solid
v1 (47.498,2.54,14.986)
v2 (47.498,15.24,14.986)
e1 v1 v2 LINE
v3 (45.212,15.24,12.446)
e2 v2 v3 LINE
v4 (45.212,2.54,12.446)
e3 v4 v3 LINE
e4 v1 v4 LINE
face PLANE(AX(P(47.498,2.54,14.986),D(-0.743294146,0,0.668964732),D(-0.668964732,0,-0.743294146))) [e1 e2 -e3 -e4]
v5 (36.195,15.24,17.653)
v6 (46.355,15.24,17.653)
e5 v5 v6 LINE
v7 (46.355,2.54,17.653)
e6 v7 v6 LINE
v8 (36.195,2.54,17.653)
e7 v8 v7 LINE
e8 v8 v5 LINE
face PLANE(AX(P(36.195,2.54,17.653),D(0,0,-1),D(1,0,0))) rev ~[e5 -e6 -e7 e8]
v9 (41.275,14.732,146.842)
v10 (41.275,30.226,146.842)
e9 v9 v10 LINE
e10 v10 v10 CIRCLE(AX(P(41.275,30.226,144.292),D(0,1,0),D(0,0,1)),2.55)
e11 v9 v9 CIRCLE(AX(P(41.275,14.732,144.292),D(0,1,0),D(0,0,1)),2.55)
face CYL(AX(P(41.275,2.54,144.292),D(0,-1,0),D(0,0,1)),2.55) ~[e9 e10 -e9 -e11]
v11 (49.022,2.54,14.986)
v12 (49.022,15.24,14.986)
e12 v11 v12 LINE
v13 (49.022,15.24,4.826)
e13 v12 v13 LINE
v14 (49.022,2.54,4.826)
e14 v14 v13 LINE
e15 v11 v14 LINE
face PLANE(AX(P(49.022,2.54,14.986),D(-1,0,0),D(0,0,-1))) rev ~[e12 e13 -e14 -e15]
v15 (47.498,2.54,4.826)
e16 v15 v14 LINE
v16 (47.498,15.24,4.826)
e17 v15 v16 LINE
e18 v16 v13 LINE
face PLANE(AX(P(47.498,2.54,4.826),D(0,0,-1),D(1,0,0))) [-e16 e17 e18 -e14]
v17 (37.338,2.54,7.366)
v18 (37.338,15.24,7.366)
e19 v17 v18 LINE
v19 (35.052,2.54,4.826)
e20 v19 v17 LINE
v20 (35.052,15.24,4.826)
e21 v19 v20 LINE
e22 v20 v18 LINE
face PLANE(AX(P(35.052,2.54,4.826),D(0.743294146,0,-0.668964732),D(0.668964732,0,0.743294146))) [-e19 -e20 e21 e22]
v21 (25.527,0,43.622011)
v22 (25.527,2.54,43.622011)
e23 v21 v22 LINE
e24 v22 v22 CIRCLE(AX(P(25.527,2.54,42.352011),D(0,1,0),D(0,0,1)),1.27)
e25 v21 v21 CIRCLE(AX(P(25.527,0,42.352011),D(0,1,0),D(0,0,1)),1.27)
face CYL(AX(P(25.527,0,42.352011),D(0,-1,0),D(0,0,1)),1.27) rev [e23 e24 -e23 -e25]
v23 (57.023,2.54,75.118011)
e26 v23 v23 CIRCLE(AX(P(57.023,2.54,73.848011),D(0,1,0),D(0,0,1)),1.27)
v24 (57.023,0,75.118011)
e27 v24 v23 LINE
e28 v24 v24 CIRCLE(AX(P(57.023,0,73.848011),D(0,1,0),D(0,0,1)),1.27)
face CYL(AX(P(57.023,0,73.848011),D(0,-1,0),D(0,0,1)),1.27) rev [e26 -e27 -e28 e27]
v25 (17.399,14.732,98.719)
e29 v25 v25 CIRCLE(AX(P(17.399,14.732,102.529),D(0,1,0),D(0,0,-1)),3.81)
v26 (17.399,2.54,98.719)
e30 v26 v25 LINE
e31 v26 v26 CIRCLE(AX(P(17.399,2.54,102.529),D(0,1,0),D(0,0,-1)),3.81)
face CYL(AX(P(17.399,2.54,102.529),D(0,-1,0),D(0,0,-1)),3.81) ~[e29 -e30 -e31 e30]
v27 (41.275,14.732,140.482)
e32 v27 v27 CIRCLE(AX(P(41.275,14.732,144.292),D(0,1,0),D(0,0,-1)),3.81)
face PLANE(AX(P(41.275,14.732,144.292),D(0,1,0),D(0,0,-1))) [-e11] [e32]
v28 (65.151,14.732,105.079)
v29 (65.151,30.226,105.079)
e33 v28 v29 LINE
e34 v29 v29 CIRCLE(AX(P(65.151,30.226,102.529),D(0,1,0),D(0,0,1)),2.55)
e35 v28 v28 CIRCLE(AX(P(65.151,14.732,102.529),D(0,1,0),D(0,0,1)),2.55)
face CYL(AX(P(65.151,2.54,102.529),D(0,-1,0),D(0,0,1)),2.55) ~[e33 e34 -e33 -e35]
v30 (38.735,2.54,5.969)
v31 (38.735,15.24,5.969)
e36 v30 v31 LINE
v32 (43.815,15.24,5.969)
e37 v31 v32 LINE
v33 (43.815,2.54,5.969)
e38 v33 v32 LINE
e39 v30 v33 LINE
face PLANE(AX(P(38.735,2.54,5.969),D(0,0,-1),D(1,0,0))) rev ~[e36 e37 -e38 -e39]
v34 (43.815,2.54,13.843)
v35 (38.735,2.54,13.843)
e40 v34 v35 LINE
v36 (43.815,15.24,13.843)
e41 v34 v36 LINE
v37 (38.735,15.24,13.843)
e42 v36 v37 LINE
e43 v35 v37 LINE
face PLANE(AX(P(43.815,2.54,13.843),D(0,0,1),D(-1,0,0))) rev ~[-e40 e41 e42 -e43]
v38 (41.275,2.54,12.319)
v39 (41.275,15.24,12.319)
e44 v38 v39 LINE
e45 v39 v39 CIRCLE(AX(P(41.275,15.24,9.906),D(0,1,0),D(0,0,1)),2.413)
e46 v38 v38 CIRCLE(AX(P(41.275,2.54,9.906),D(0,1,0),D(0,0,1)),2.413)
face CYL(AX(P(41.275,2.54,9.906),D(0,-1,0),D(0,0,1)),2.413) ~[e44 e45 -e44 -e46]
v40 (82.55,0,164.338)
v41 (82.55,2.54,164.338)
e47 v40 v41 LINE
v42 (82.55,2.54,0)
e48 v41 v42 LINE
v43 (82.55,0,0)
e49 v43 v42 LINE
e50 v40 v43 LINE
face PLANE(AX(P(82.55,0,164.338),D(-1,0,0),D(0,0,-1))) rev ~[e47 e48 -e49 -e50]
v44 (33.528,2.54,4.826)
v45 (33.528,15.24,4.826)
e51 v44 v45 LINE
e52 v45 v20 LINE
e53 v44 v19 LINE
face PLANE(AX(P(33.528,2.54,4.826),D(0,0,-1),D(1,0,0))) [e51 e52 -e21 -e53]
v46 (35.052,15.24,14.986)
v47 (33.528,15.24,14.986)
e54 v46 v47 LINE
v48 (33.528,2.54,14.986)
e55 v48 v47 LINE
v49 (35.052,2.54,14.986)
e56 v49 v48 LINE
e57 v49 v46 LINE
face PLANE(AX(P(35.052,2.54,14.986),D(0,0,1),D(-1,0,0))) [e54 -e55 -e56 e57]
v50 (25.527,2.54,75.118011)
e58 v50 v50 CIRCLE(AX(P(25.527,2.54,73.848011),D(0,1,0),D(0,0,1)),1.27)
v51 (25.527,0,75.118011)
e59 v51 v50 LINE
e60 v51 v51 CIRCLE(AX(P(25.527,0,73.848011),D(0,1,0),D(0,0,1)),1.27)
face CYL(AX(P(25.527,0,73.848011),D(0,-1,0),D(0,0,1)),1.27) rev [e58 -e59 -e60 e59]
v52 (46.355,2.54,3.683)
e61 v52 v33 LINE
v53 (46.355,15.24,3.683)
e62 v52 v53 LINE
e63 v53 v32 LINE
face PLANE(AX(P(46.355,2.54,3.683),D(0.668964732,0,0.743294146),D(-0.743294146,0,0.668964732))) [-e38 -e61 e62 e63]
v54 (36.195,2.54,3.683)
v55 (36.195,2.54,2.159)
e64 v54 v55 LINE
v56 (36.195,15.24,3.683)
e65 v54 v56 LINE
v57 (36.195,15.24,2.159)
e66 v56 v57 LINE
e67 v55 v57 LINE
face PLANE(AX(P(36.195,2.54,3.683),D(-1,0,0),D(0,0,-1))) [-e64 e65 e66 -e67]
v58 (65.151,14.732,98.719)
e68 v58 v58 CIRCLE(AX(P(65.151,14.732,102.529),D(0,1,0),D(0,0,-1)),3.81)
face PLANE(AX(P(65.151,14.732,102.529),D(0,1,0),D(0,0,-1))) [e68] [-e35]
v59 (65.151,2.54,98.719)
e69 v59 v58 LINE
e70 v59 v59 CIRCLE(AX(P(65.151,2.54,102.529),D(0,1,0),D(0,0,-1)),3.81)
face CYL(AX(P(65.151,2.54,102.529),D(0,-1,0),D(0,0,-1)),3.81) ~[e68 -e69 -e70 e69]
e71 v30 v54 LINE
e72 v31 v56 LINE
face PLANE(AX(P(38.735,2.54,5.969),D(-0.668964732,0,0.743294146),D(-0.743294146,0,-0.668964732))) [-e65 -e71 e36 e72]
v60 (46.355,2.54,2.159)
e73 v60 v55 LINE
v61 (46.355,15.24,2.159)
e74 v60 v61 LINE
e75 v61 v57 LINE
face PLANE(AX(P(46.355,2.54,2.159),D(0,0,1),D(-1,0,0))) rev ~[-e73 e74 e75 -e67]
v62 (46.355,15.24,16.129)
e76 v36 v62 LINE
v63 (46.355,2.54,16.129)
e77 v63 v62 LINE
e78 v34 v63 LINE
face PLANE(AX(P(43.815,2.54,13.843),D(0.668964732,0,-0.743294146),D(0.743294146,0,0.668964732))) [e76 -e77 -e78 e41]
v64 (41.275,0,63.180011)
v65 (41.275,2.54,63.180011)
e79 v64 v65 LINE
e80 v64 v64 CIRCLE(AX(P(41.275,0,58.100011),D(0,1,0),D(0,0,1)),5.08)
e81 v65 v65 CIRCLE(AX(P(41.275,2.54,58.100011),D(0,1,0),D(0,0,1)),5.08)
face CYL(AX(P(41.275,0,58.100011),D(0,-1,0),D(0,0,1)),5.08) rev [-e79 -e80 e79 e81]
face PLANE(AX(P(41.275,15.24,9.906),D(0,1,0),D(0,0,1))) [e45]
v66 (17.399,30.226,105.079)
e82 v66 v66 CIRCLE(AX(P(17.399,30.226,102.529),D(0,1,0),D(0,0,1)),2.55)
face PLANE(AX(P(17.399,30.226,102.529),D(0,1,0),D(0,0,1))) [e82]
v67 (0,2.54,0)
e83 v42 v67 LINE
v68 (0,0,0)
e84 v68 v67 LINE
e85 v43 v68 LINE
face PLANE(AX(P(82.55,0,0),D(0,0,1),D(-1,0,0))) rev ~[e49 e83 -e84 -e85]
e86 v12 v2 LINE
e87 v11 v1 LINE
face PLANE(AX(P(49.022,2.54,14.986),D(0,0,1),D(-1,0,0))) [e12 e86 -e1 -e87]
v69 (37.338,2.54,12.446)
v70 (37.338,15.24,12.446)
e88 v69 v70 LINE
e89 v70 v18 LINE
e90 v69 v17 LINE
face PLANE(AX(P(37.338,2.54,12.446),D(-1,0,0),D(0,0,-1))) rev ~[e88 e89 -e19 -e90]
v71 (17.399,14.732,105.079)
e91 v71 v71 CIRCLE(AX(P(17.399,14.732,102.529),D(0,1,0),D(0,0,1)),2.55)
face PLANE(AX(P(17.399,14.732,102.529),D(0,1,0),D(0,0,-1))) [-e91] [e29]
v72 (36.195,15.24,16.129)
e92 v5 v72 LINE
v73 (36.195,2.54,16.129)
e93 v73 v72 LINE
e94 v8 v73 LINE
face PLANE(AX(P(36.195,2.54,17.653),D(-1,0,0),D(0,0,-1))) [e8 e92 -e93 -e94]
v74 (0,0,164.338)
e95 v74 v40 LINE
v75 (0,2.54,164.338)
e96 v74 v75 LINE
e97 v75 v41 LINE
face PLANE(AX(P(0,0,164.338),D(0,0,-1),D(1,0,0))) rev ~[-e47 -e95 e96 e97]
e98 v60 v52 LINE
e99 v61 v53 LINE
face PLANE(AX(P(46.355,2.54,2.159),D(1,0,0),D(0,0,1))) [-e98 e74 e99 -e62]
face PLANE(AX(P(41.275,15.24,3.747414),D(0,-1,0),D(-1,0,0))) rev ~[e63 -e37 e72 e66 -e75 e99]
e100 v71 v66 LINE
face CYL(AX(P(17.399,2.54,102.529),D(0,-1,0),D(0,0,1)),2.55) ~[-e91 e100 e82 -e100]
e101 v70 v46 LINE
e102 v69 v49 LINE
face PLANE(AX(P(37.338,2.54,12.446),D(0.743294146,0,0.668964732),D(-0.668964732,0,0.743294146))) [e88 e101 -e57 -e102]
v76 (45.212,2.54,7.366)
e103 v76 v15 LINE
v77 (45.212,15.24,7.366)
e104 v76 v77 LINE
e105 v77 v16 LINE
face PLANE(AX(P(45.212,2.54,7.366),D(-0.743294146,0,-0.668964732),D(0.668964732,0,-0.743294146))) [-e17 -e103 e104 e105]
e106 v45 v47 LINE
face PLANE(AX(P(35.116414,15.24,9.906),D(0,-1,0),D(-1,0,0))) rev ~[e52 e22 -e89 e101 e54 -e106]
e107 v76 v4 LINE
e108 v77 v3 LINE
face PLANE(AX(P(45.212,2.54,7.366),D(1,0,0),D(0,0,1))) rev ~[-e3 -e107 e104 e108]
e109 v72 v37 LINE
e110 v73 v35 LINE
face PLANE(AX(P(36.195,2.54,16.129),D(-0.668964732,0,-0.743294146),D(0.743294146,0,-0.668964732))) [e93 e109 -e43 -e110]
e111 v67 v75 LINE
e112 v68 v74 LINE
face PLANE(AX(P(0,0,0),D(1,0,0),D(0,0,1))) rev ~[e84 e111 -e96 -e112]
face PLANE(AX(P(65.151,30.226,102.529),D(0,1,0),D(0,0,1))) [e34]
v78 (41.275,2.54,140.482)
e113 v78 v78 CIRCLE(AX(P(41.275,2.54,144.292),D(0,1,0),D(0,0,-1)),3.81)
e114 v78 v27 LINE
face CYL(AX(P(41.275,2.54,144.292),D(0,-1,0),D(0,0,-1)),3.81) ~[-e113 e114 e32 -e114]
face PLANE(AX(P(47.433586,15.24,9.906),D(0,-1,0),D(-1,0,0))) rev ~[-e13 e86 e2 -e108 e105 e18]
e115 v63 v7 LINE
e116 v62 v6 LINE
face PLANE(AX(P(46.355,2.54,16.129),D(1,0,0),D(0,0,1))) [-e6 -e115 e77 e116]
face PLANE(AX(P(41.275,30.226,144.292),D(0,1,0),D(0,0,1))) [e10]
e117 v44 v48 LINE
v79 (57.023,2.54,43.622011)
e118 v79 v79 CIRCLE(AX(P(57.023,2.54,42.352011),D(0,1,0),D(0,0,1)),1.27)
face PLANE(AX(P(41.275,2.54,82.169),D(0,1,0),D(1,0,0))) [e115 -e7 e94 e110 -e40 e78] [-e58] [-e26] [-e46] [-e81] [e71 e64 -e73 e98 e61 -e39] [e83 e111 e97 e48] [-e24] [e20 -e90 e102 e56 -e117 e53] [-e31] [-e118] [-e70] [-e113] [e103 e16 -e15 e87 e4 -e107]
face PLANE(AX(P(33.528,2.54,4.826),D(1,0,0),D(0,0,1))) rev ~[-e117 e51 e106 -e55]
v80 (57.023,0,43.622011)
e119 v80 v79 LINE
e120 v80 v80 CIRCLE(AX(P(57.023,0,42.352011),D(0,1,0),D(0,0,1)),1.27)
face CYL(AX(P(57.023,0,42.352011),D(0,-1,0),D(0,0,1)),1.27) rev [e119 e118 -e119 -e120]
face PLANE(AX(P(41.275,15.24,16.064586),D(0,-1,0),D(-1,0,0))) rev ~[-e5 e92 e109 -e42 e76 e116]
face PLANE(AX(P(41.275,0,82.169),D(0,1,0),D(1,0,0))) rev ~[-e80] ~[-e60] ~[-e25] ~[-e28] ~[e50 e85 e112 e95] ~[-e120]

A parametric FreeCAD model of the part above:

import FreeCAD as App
import Part
import Sketcher
from FreeCAD import Vector
Q = App.Units.Quantity


def add_polygon(sketch, points):
    """Adds a closed chain of lines whose ends are joined by coincident constraints."""
    first, n = sketch.GeometryCount, len(points)
    for a, b in zip(points, points[1:] + points[:1]):
        sketch.addGeometry(Part.LineSegment(App.Vector(*a, 0), App.Vector(*b, 0)), False)
    for i in range(n):
        sketch.addConstraint(Sketcher.Constraint("Coincident", first + i, 2, first + (i + 1) % n, 1))

doc = App.newDocument("Part")
params = doc.addObject("Spreadsheet::Sheet", "Params")
for row, (alias, value) in enumerate([
    ("sketch1_diameter", "0.1 in"),
    ("sketch1_diameter2", "0.4 in"),
    ("sketch1_width", "3.25 in"),
    ("sketch1_height", "6.47 in"),
    ("pad1_length", "0.1 in"),
    ("sketch2_diameter", "0.19 in"),
    ("sketch2_width", "0.4 in"),
    ("sketch2_width2", "0.2 in"),
    ("sketch2_width3", "0.06 in"),
    ("pad2_length", "0.5 in"),
    ("pad3_length", "1.09 in"),
    ("sketch4_diameter", "0.3 in"),
    ("pad4_length", "0.48 in"),
], start=1):
    params.set(f"A{row}", alias)
    params.set(f"B{row}", "=" + value)
    params.setAlias(f"B{row}", alias)

body = doc.addObject("PartDesign::Body", "Body")

sketch1 = body.newObject("Sketcher::SketchObject", "Sketch")
sketch1.AttachmentSupport = (doc.getObject("XZ_Plane"), [""])
sketch1.MapMode = "FlatFace"
add_polygon(sketch1, [(82.5, 164.3), (82.5, 0), (0, 0), (0, 164.3)])
sketch1.addGeometry(Part.Circle(Vector(25.5, 73.8, 0), Vector(0, 0, 1), 1.3), False)
sketch1.addGeometry(Part.Circle(Vector(41.3, 58.1, 0), Vector(0, 0, 1), 5.1), False)
sketch1.addGeometry(Part.Circle(Vector(57, 73.8, 0), Vector(0, 0, 1), 1.3), False)
sketch1.addGeometry(Part.Circle(Vector(25.5, 42.4, 0), Vector(0, 0, 1), 1.3), False)
sketch1.addGeometry(Part.Circle(Vector(57, 42.4, 0), Vector(0, 0, 1), 1.3), False)
sketch1.addConstraint(Sketcher.Constraint("Vertical", 0))
sketch1.addConstraint(Sketcher.Constraint("Horizontal", 1))
sketch1.addConstraint(Sketcher.Constraint("Vertical", 2))
sketch1.addConstraint(Sketcher.Constraint("Horizontal", 3))
sketch1.addConstraint(Sketcher.Constraint("Coincident", 1, 2, -1, 1))
sketch1.addConstraint(Sketcher.Constraint("Equal", 4, 6))
sketch1.addConstraint(Sketcher.Constraint("Equal", 6, 7))
sketch1.addConstraint(Sketcher.Constraint("Equal", 7, 8))
sketch1.addConstraint(Sketcher.Constraint("Horizontal", 4, 3, 6, 3))
sketch1.addConstraint(Sketcher.Constraint("Horizontal", 7, 3, 8, 3))
sketch1.addConstraint(Sketcher.Constraint("Vertical", 4, 3, 7, 3))
sketch1.addConstraint(Sketcher.Constraint("Vertical", 6, 3, 8, 3))
sketch1.addConstraint(Sketcher.Constraint("Diameter", 4, Q("0.1 in")))
sketch1.addConstraint(Sketcher.Constraint("Diameter", 5, Q("0.4 in")))
sketch1.addConstraint(Sketcher.Constraint("DistanceX", 1, 2, 1, 1, Q("3.25 in")))
sketch1.addConstraint(Sketcher.Constraint("DistanceY", 0, 2, 0, 1, Q("6.47 in")))
sketch1.addConstraint(Sketcher.Constraint("DistanceX", 4, 3, 5, 3, Q("0.62 in")))
sketch1.addConstraint(Sketcher.Constraint("DistanceY", 5, 3, 4, 3, Q("0.62 in")))
sketch1.addConstraint(Sketcher.Constraint("DistanceX", 5, 3, 6, 3, Q("0.62 in")))
sketch1.addConstraint(Sketcher.Constraint("DistanceY", 7, 3, 5, 3, Q("0.62 in")))
sketch1.addConstraint(Sketcher.Constraint("DistanceX", -1, 1, 4, 3, Q("1.005 in")))
sketch1.addConstraint(Sketcher.Constraint("DistanceY", -1, 1, 4, 3, 73.848011))
sketch1.setExpression("Constraints[16]", "Params.sketch1_diameter")
sketch1.setExpression("Constraints[17]", "Params.sketch1_diameter2")
sketch1.setExpression("Constraints[18]", "Params.sketch1_width")
sketch1.setExpression("Constraints[19]", "Params.sketch1_height")
pad1 = body.newObject("PartDesign::Pad", "Pad")
pad1.Profile = sketch1
pad1.setExpression("Length", "Params.pad1_length")
pad1.Reversed = True

sketch2 = body.newObject("Sketcher::SketchObject", "Sketch001")
sketch2.AttachmentSupport = (doc.getObject("XZ_Plane"), [""])
sketch2.MapMode = "FlatFace"
sketch2.AttachmentOffset = App.Placement(Vector(0, 0, -0.1 * 25.4), App.Rotation())
add_polygon(sketch2, [(33.5, 4.8), (33.5, 15), (35.1, 15), (37.3, 12.4), (37.3, 7.4), (35.1, 4.8)])
sketch2.addGeometry(Part.Circle(Vector(41.3, 9.9, 0), Vector(0, 0, 1), 2.4), False)
add_polygon(sketch2, [(46.4, 2.2), (36.2, 2.2), (36.2, 3.7), (38.7, 6), (43.8, 6), (46.4, 3.7)])
add_polygon(sketch2, [(45.2, 12.4), (47.5, 15), (49, 15), (49, 4.8), (47.5, 4.8), (45.2, 7.4)])
add_polygon(sketch2, [(36.2, 17.7), (46.4, 17.7), (46.4, 16.1), (43.8, 13.8), (38.7, 13.8), (36.2, 16.1)])
sketch2.addConstraint(Sketcher.Constraint("Vertical", 0))
sketch2.addConstraint(Sketcher.Constraint("Horizontal", 1))
sketch2.addConstraint(Sketcher.Constraint("Vertical", 3))
sketch2.addConstraint(Sketcher.Constraint("Horizontal", 5))
sketch2.addConstraint(Sketcher.Constraint("Horizontal", 7))
sketch2.addConstraint(Sketcher.Constraint("Vertical", 8))
sketch2.addConstraint(Sketcher.Constraint("Horizontal", 10))
sketch2.addConstraint(Sketcher.Constraint("Vertical", 12))
sketch2.addConstraint(Sketcher.Constraint("Horizontal", 14))
sketch2.addConstraint(Sketcher.Constraint("Vertical", 15))
sketch2.addConstraint(Sketcher.Constraint("Horizontal", 16))
sketch2.addConstraint(Sketcher.Constraint("Vertical", 18))
sketch2.addConstraint(Sketcher.Constraint("Horizontal", 19))
sketch2.addConstraint(Sketcher.Constraint("Vertical", 20))
sketch2.addConstraint(Sketcher.Constraint("Horizontal", 22))
sketch2.addConstraint(Sketcher.Constraint("Vertical", 24))
sketch2.addConstraint(Sketcher.Constraint("Perpendicular", 2, 9))
sketch2.addConstraint(Sketcher.Constraint("Perpendicular", 4, 11))
sketch2.addConstraint(Sketcher.Constraint("Perpendicular", 11, 13))
sketch2.addConstraint(Sketcher.Constraint("Perpendicular", 9, 17))
sketch2.addConstraint(Sketcher.Constraint("Perpendicular", 17, 21))
sketch2.addConstraint(Sketcher.Constraint("Perpendicular", 13, 23))
sketch2.addConstraint(Sketcher.Constraint("Horizontal", 8, 2, 11, 2))
sketch2.addConstraint(Sketcher.Constraint("Horizontal", 1, 2, 13, 2))
sketch2.addConstraint(Sketcher.Constraint("Horizontal", 5, 2, 15, 2))
sketch2.addConstraint(Sketcher.Constraint("Horizontal", 3, 2, 17, 2))
sketch2.addConstraint(Sketcher.Constraint("Horizontal", 2, 2, 18, 2))
sketch2.addConstraint(Sketcher.Constraint("Horizontal", 20, 2, 23, 2))
sketch2.addConstraint(Sketcher.Constraint("Vertical", 1, 2, 4, 2))
sketch2.addConstraint(Sketcher.Constraint("Vertical", 13, 2, 16, 2))
sketch2.addConstraint(Sketcher.Constraint("Vertical", 12, 2, 19, 2))
sketch2.addConstraint(Sketcher.Constraint("Vertical", 10, 2, 21, 2))
sketch2.addConstraint(Sketcher.Constraint("Vertical", 9, 2, 22, 2))
sketch2.addConstraint(Sketcher.Constraint("Equal", 5, 14))
sketch2.addConstraint(Sketcher.Constraint("Equal", 19, 0))
sketch2.addConstraint(Sketcher.Constraint("Equal", 22, 3))
sketch2.addConstraint(Sketcher.Constraint("Equal", 16, 8))
sketch2.addConstraint(Sketcher.Constraint("Equal", 12, 20))
sketch2.addConstraint(Sketcher.Constraint("Diameter", 6, Q("0.19 in")))
sketch2.addConstraint(Sketcher.Constraint("DistanceX", 7, 2, 7, 1, Q("0.4 in")))
sketch2.addConstraint(Sketcher.Constraint("DistanceX", 10, 1, 10, 2, Q("0.2 in")))
sketch2.addConstraint(Sketcher.Constraint("DistanceX", 1, 1, 1, 2, Q("0.06 in")))
sketch2.addConstraint(Sketcher.Constraint("DistanceY", 6, 3, 0, 2, Q("0.2 in")))
sketch2.addConstraint(Sketcher.Constraint("DistanceX", 7, 2, 6, 3, Q("0.2 in")))
sketch2.addConstraint(Sketcher.Constraint("DistanceX", 2, 2, 13, 2, Q("0.4 in")))
sketch2.addConstraint(Sketcher.Constraint("DistanceY", -1, 1, 6, 3, Q("0.39 in")))
sketch2.addConstraint(Sketcher.Constraint("DistanceX", -1, 1, 0, 2, Q("1.32 in")))
sketch2.addConstraint(Sketcher.Constraint("DistanceX", -1, 1, 2, 2, Q("1.47 in")))
sketch2.addConstraint(Sketcher.Constraint("DistanceX", -1, 1, 6, 3, Q("1.625 in")))
sketch2.addConstraint(Sketcher.Constraint("DistanceY", -1, 1, 7, 2, Q("0.085 in")))
sketch2.addConstraint(Sketcher.Constraint("DistanceY", -1, 1, 19, 2, Q("0.695 in")))
sketch2.setExpression("Constraints[62]", "Params.sketch2_diameter")
sketch2.setExpression("Constraints[63]", "Params.sketch2_width")
sketch2.setExpression("Constraints[64]", "Params.sketch2_width2")
sketch2.setExpression("Constraints[65]", "Params.sketch2_width3")
pad2 = body.newObject("PartDesign::Pad", "Pad001")
pad2.Profile = sketch2
pad2.setExpression("Length", "Params.pad2_length")
pad2.Reversed = True

sketch3 = body.newObject("Sketcher::SketchObject", "Sketch002")
sketch3.AttachmentSupport = (doc.getObject("XZ_Plane"), [""])
sketch3.MapMode = "FlatFace"
sketch3.AttachmentOffset = App.Placement(Vector(0, 0, -0.1 * 25.4), App.Rotation())
sketch3.addGeometry(Part.Circle(Vector(17.4, 102.5, 0), Vector(0, 0, 1), 2.5), False)
sketch3.addGeometry(Part.Circle(Vector(41.3, 144.3, 0), Vector(0, 0, 1), 2.5), False)
sketch3.addGeometry(Part.Circle(Vector(65.2, 102.5, 0), Vector(0, 0, 1), 2.5), False)
sketch3.addConstraint(Sketcher.Constraint("Equal", 0, 1))
sketch3.addConstraint(Sketcher.Constraint("Equal", 1, 2))
sketch3.addConstraint(Sketcher.Constraint("Horizontal", 0, 3, 2, 3))
sketch3.addConstraint(Sketcher.Constraint("Diameter", 0, 5.1))
sketch3.addConstraint(Sketcher.Constraint("DistanceX", 0, 3, 1, 3, Q("0.94 in")))
sketch3.addConstraint(Sketcher.Constraint("DistanceX", 0, 3, 2, 3, Q("1.88 in")))
sketch3.addConstraint(Sketcher.Constraint("DistanceX", -1, 1, 0, 3, Q("0.685 in")))
sketch3.addConstraint(Sketcher.Constraint("DistanceY", -1, 1, 0, 3, 102.529))
sketch3.addConstraint(Sketcher.Constraint("DistanceY", -1, 1, 1, 3, 144.292))
pad3 = body.newObject("PartDesign::Pad", "Pad002")
pad3.Profile = sketch3
pad3.setExpression("Length", "Params.pad3_length")
pad3.Reversed = True

sketch4 = body.newObject("Sketcher::SketchObject", "Sketch003")
sketch4.AttachmentSupport = (doc.getObject("XZ_Plane"), [""])
sketch4.MapMode = "FlatFace"
sketch4.AttachmentOffset = App.Placement(Vector(0, 0, -0.1 * 25.4), App.Rotation())
sketch4.addGeometry(Part.Circle(Vector(41.3, 144.3, 0), Vector(0, 0, 1), 3.8), False)
sketch4.addGeometry(Part.Circle(Vector(41.3, 144.3, 0), Vector(0, 0, 1), 2.5), False)
sketch4.addGeometry(Part.Circle(Vector(65.2, 102.5, 0), Vector(0, 0, 1), 3.8), False)
sketch4.addGeometry(Part.Circle(Vector(65.2, 102.5, 0), Vector(0, 0, 1), 2.5), False)
sketch4.addGeometry(Part.Circle(Vector(17.4, 102.5, 0), Vector(0, 0, 1), 3.8), False)
sketch4.addGeometry(Part.Circle(Vector(17.4, 102.5, 0), Vector(0, 0, 1), 2.5), False)
sketch4.addConstraint(Sketcher.Constraint("Coincident", 1, 3, 0, 3))
sketch4.addConstraint(Sketcher.Constraint("Coincident", 3, 3, 2, 3))
sketch4.addConstraint(Sketcher.Constraint("Coincident", 5, 3, 4, 3))
sketch4.addConstraint(Sketcher.Constraint("Equal", 0, 2))
sketch4.addConstraint(Sketcher.Constraint("Equal", 1, 3))
sketch4.addConstraint(Sketcher.Constraint("Equal", 2, 4))
sketch4.addConstraint(Sketcher.Constraint("Equal", 3, 5))
sketch4.addConstraint(Sketcher.Constraint("Horizontal", 3, 3, 4, 3))
sketch4.addConstraint(Sketcher.Constraint("Diameter", 0, Q("0.3 in")))
sketch4.addConstraint(Sketcher.Constraint("Diameter", 1, 5.1))
sketch4.addConstraint(Sketcher.Constraint("DistanceX", 0, 3, 2, 3, Q("0.94 in")))
sketch4.addConstraint(Sketcher.Constraint("DistanceX", 4, 3, 2, 3, Q("1.88 in")))
sketch4.addConstraint(Sketcher.Constraint("DistanceX", -1, 1, 0, 3, Q("1.625 in")))
sketch4.addConstraint(Sketcher.Constraint("DistanceY", -1, 1, 0, 3, 144.292))
sketch4.addConstraint(Sketcher.Constraint("DistanceY", -1, 1, 2, 3, 102.529))
sketch4.setExpression("Constraints[8]", "Params.sketch4_diameter")
pad4 = body.newObject("PartDesign::Pad", "Pad003")
pad4.Profile = sketch4
pad4.setExpression("Length", "Params.pad4_length")
pad4.Reversed = True

doc.recompute()
